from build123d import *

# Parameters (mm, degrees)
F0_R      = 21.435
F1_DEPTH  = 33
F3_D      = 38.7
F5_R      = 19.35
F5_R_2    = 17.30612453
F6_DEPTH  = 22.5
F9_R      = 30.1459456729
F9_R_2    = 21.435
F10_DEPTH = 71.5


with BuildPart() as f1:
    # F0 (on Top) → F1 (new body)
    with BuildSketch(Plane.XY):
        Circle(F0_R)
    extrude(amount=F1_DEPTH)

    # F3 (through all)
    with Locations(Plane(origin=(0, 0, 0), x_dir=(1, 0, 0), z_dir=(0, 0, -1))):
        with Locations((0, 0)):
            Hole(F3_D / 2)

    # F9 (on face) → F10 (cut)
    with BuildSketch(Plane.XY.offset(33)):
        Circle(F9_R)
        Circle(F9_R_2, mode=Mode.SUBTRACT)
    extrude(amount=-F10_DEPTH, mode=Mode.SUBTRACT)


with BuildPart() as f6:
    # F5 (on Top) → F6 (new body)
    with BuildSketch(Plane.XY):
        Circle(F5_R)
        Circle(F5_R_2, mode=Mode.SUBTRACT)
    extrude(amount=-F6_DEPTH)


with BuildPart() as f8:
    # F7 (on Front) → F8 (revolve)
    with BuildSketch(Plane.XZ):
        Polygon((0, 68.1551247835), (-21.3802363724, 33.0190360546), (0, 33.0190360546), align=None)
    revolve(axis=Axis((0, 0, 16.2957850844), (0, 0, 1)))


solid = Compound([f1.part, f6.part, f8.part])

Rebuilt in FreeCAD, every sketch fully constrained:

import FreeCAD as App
import Part
import Sketcher

V = App.Vector
Q = App.Units.Quantity


def add_polygon(sketch, points):
    """Adds a closed chain of lines whose ends are joined by coincident constraints."""
    first, n = sketch.GeometryCount, len(points)
    for a, b in zip(points, points[1:] + points[:1]):
        sketch.addGeometry(Part.LineSegment(App.Vector(*a, 0), App.Vector(*b, 0)), False)
    for i in range(n):
        sketch.addConstraint(Sketcher.Constraint("Coincident", first + i, 2, first + (i + 1) % n, 1))

doc = App.newDocument("Part")
params = doc.addObject("Spreadsheet::Sheet", "Params")
for row, (alias, value) in enumerate([
    ("sketch1_diameter", "42.87 mm"),
    ("pad1_length", "33 mm"),
    ("sketch2_diameter", "38.7 mm"),
    ("hole_diameter", "38.7 mm"),
    ("sketch3_diameter", "42.87 mm"),
    ("pocket1_length", "71.5 mm"),
    ("sketch4_diameter", "38.7 mm"),
    ("pad2_length", "22.5 mm"),
    ("revolution_angle", "360 deg"),
], start=1):
    params.set(f"A{row}", alias)
    params.set(f"B{row}", "=" + value)
    params.setAlias(f"B{row}", alias)

body = doc.addObject("PartDesign::Body", "Body")

sketch1 = body.newObject("Sketcher::SketchObject", "Sketch")
sketch1.AttachmentSupport = (doc.getObject("XY_Plane"), [""])
sketch1.MapMode = "FlatFace"
sketch1.addGeometry(Part.Circle(V(0, 0, 0), V(0, 0, 1), 21.435), False)
sketch1.addConstraint([
    Sketcher.Constraint("Coincident", 0, 3, -1, 1),
    Sketcher.Constraint("Diameter", 0, Q("42.87 mm")),
])
sketch1.setExpression("Constraints[1]", "Params.sketch1_diameter")
pad1 = body.newObject("PartDesign::Pad", "Pad")
pad1.Profile = sketch1
pad1.setExpression("Length", "Params.pad1_length")

sketch2 = body.newObject("Sketcher::SketchObject", "Sketch001")
sketch2.AttachmentSupport = (doc.getObject("XY_Plane"), [""])
sketch2.MapMode = "FlatFace"
sketch2.addGeometry(Part.Circle(V(0, 0, 0), V(0, 0, 1), 19.35), False)
sketch2.addConstraint([
    Sketcher.Constraint("Coincident", 0, 3, -1, 1),
    Sketcher.Constraint("Diameter", 0, Q("38.7 mm")),
])
sketch2.setExpression("Constraints[1]", "Params.sketch2_diameter")
doc.recompute()
hole = body.newObject("PartDesign::Hole", "Hole")
hole.Profile = sketch2
hole.ThreadType = "None"
hole.setExpression("Diameter", "Params.hole_diameter")
hole.DepthType = "ThroughAll"
hole.Reversed = True

sketch3 = body.newObject("Sketcher::SketchObject", "Sketch002")
sketch3.AttachmentSupport = (doc.getObject("XY_Plane"), [""])
sketch3.MapMode = "FlatFace"
sketch3.AttachmentOffset = App.Placement(V(0, 0, 33), App.Rotation())
sketch3.addGeometry([
    Part.Circle(V(0, 0, 0), V(0, 0, 1), 30.145946),
    Part.Circle(V(0, 0, 0), V(0, 0, 1), 21.435),
], False)
sketch3.addConstraint([
    Sketcher.Constraint("Coincident", 0, 3, -1, 1),
    Sketcher.Constraint("Coincident", 1, 3, -1, 1),
    Sketcher.Constraint("Diameter", 1, Q("42.87 mm")),
    Sketcher.Constraint("Diameter", 0, Q("60.291891 mm")),
])
sketch3.setExpression("Constraints[2]", "Params.sketch3_diameter")
pocket1 = body.newObject("PartDesign::Pocket", "Pocket")
pocket1.Profile = sketch3
pocket1.setExpression("Length", "Params.pocket1_length")
body2 = doc.addObject("PartDesign::Body", "Body001")

sketch4 = body2.newObject("Sketcher::SketchObject", "Sketch003")
sketch4.AttachmentSupport = (doc.getObject("XY_Plane001"), [""])
sketch4.MapMode = "FlatFace"
sketch4.addGeometry([
    Part.Circle(V(0, 0, 0), V(0, 0, 1), 19.35),
    Part.Circle(V(0, 0, 0), V(0, 0, 1), 17.306125),
], False)
sketch4.addConstraint([
    Sketcher.Constraint("Coincident", 0, 3, -1, 1),
    Sketcher.Constraint("Coincident", 1, 3, -1, 1),
    Sketcher.Constraint("Diameter", 0, Q("38.7 mm")),
    Sketcher.Constraint("Diameter", 1, Q("34.612249 mm")),
])
sketch4.setExpression("Constraints[2]", "Params.sketch4_diameter")
pad2 = body2.newObject("PartDesign::Pad", "Pad001")
pad2.Profile = sketch4
pad2.setExpression("Length", "Params.pad2_length")
pad2.Reversed = True
body3 = doc.addObject("PartDesign::Body", "Body002")

sketch5 = body3.newObject("Sketcher::SketchObject", "Sketch004")
sketch5.AttachmentSupport = (doc.getObject("XZ_Plane002"), [""])
sketch5.MapMode = "FlatFace"
add_polygon(sketch5, [(0, 68.155125), (-21.380236, 33.019036), (0, 33.019036)])
sketch5.addConstraint([
    Sketcher.Constraint("Horizontal", 1),
    Sketcher.Constraint("Vertical", 2),
    Sketcher.Constraint("PointOnObject", 1, 2, -2),
    Sketcher.Constraint("DistanceY", 2, 1, 2, 2, Q("35.136089 mm")),
    Sketcher.Constraint("DistanceX", 1, 1, 1, 2, Q("21.380236 mm")),
    Sketcher.Constraint("DistanceY", -1, 1, 0, 2, Q("33.019036 mm")),
])
revolution = body3.newObject("PartDesign::Revolution", "Revolution")
revolution.Profile = sketch5
revolution.ReferenceAxis = (sketch5, ["V_Axis"])
revolution.setExpression("Angle", "Params.revolution_angle")

doc.recompute()
